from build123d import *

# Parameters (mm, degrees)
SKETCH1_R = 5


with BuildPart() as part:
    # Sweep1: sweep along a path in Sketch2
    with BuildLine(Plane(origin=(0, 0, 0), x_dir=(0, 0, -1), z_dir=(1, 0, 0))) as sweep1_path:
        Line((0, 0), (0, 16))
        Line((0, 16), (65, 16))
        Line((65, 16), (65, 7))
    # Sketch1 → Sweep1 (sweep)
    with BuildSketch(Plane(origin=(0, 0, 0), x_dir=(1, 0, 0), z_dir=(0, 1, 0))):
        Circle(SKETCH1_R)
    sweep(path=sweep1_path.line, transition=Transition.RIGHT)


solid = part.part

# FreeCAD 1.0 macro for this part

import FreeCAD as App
import Part
import Sketcher
from FreeCAD import Vector
Q = App.Units.Quantity

doc = App.newDocument("Part")
body = doc.addObject("PartDesign::Body", "Body")

# Sketch on XZ plane
sketch1 = body.newObject("Sketcher::SketchObject", "Sketch")
sketch1.AttachmentSupport = (doc.getObject("XZ_Plane"), [""])
sketch1.MapMode = "FlatFace"
sketch1.addGeometry(Part.Circle(Vector(0, 0, 0), Vector(0, 0, 1), 5), False)
sketch1.addConstraint([
    Sketcher.Constraint("Coincident", 0, 3, -1, 1),
    Sketcher.Constraint("Diameter", 0, Q("10 mm")),
])

# Sketch on YZ plane
sketch2 = body.newObject("Sketcher::SketchObject", "Sketch001")
sketch2.AttachmentSupport = (doc.getObject("YZ_Plane"), [""])
sketch2.MapMode = "FlatFace"
sketch2.addGeometry([
    Part.LineSegment(Vector(0, 0, 0), Vector(16, 0, 0)),
    Part.LineSegment(Vector(16, 0, 0), Vector(16, -65, 0)),
    Part.LineSegment(Vector(16, -65, 0), Vector(7, -65, 0)),
], False)
sketch2.addConstraint([
    Sketcher.Constraint("Coincident", 0, 2, 1, 1),
    Sketcher.Constraint("Coincident", 1, 2, 2, 1),
    Sketcher.Constraint("Horizontal", 0),
    Sketcher.Constraint("Vertical", 1),
    Sketcher.Constraint("Horizontal", 2),
    Sketcher.Constraint("Coincident", 0, 1, -1, 1),
    Sketcher.Constraint("DistanceX", 0, 1, 0, 2, Q("16 mm")),
    Sketcher.Constraint("DistanceX", 2, 2, 2, 1, Q("9 mm")),
    Sketcher.Constraint("DistanceY", 1, 2, 1, 1, Q("65 mm")),
])
doc.recompute()

additivepipe = body.newObject("PartDesign::AdditivePipe", "AdditivePipe")
additivepipe.Profile = sketch1
additivepipe.Spine = (sketch2, ["Edge1", "Edge2", "Edge3"])
additivepipe.Transition = "Right corner"

doc.recompute()
